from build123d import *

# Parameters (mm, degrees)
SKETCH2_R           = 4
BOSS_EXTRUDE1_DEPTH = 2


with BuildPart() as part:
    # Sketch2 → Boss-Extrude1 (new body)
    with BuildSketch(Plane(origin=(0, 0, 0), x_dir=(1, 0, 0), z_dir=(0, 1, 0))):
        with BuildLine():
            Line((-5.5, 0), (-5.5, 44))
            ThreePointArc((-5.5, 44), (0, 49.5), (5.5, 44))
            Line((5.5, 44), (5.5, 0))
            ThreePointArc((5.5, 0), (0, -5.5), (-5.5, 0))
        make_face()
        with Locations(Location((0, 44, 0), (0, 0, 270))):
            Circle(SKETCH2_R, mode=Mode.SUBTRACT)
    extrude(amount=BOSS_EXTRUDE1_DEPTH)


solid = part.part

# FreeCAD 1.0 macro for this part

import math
import FreeCAD as App
import Part
import Sketcher
from FreeCAD import Vector
Q = App.Units.Quantity

doc = App.newDocument("Part")
params = doc.addObject("Spreadsheet::Sheet", "Params")
for row, (alias, value) in enumerate([
    ("sketch1_diameter", "8 mm"),
    ("sketch1_radius", "5.5 mm"),
    ("sketch1_height", "44 mm"),
    ("pad1_length", "2 mm"),
], start=1):
    params.set(f"A{row}", alias)
    params.set(f"B{row}", "=" + value)
    params.setAlias(f"B{row}", alias)

body = doc.addObject("PartDesign::Body", "Body")

sketch1 = body.newObject("Sketcher::SketchObject", "Sketch")
sketch1.AttachmentSupport = (doc.getObject("XZ_Plane"), [""])
sketch1.MapMode = "FlatFace"
sketch1.addGeometry(Part.LineSegment(Vector(-5.5, -44, 0), Vector(-5.5, 0, 0)), False)
sketch1.addGeometry(Part.ArcOfCircle(Part.Circle(Vector(0, 0, 0), Vector(0, 0, 1), 5.5), math.radians(0), math.radians(180)), False)
sketch1.addGeometry(Part.LineSegment(Vector(5.5, 0, 0), Vector(5.5, -44, 0)), False)
sketch1.addGeometry(Part.ArcOfCircle(Part.Circle(Vector(0, -44, 0), Vector(0, 0, 1), 5.5), math.radians(180), math.radians(360)), False)
sketch1.addGeometry(Part.Circle(Vector(0, -44, 0), Vector(0, 0, 1), 4), False)
sketch1.addConstraint(Sketcher.Constraint("Tangent", 0, 2, 1, 2))
sketch1.addConstraint(Sketcher.Constraint("Tangent", 1, 1, 2, 1))
sketch1.addConstraint(Sketcher.Constraint("Tangent", 2, 2, 3, 2))
sketch1.addConstraint(Sketcher.Constraint("Tangent", 3, 1, 0, 1))
sketch1.addConstraint(Sketcher.Constraint("Vertical", 0))
sketch1.addConstraint(Sketcher.Constraint("Vertical", 2))
sketch1.addConstraint(Sketcher.Constraint("Coincident", 1, 3, -1, 1))
sketch1.addConstraint(Sketcher.Constraint("Coincident", 4, 3, 3, 3))
sketch1.addConstraint(Sketcher.Constraint("Diameter", 4, Q("8 mm")))
sketch1.addConstraint(Sketcher.Constraint("Radius", 1, Q("5.5 mm")))
sketch1.addConstraint(Sketcher.Constraint("DistanceY", 0, 1, 0, 2, Q("44 mm")))
sketch1.setExpression("Constraints[8]", "Params.sketch1_diameter")
sketch1.setExpression("Constraints[9]", "Params.sketch1_radius")
sketch1.setExpression("Constraints[10]", "Params.sketch1_height")
pad1 = body.newObject("PartDesign::Pad", "Pad")
pad1.Profile = sketch1
pad1.setExpression("Length", "Params.pad1_length")
pad1.Reversed = True

doc.recompute()
